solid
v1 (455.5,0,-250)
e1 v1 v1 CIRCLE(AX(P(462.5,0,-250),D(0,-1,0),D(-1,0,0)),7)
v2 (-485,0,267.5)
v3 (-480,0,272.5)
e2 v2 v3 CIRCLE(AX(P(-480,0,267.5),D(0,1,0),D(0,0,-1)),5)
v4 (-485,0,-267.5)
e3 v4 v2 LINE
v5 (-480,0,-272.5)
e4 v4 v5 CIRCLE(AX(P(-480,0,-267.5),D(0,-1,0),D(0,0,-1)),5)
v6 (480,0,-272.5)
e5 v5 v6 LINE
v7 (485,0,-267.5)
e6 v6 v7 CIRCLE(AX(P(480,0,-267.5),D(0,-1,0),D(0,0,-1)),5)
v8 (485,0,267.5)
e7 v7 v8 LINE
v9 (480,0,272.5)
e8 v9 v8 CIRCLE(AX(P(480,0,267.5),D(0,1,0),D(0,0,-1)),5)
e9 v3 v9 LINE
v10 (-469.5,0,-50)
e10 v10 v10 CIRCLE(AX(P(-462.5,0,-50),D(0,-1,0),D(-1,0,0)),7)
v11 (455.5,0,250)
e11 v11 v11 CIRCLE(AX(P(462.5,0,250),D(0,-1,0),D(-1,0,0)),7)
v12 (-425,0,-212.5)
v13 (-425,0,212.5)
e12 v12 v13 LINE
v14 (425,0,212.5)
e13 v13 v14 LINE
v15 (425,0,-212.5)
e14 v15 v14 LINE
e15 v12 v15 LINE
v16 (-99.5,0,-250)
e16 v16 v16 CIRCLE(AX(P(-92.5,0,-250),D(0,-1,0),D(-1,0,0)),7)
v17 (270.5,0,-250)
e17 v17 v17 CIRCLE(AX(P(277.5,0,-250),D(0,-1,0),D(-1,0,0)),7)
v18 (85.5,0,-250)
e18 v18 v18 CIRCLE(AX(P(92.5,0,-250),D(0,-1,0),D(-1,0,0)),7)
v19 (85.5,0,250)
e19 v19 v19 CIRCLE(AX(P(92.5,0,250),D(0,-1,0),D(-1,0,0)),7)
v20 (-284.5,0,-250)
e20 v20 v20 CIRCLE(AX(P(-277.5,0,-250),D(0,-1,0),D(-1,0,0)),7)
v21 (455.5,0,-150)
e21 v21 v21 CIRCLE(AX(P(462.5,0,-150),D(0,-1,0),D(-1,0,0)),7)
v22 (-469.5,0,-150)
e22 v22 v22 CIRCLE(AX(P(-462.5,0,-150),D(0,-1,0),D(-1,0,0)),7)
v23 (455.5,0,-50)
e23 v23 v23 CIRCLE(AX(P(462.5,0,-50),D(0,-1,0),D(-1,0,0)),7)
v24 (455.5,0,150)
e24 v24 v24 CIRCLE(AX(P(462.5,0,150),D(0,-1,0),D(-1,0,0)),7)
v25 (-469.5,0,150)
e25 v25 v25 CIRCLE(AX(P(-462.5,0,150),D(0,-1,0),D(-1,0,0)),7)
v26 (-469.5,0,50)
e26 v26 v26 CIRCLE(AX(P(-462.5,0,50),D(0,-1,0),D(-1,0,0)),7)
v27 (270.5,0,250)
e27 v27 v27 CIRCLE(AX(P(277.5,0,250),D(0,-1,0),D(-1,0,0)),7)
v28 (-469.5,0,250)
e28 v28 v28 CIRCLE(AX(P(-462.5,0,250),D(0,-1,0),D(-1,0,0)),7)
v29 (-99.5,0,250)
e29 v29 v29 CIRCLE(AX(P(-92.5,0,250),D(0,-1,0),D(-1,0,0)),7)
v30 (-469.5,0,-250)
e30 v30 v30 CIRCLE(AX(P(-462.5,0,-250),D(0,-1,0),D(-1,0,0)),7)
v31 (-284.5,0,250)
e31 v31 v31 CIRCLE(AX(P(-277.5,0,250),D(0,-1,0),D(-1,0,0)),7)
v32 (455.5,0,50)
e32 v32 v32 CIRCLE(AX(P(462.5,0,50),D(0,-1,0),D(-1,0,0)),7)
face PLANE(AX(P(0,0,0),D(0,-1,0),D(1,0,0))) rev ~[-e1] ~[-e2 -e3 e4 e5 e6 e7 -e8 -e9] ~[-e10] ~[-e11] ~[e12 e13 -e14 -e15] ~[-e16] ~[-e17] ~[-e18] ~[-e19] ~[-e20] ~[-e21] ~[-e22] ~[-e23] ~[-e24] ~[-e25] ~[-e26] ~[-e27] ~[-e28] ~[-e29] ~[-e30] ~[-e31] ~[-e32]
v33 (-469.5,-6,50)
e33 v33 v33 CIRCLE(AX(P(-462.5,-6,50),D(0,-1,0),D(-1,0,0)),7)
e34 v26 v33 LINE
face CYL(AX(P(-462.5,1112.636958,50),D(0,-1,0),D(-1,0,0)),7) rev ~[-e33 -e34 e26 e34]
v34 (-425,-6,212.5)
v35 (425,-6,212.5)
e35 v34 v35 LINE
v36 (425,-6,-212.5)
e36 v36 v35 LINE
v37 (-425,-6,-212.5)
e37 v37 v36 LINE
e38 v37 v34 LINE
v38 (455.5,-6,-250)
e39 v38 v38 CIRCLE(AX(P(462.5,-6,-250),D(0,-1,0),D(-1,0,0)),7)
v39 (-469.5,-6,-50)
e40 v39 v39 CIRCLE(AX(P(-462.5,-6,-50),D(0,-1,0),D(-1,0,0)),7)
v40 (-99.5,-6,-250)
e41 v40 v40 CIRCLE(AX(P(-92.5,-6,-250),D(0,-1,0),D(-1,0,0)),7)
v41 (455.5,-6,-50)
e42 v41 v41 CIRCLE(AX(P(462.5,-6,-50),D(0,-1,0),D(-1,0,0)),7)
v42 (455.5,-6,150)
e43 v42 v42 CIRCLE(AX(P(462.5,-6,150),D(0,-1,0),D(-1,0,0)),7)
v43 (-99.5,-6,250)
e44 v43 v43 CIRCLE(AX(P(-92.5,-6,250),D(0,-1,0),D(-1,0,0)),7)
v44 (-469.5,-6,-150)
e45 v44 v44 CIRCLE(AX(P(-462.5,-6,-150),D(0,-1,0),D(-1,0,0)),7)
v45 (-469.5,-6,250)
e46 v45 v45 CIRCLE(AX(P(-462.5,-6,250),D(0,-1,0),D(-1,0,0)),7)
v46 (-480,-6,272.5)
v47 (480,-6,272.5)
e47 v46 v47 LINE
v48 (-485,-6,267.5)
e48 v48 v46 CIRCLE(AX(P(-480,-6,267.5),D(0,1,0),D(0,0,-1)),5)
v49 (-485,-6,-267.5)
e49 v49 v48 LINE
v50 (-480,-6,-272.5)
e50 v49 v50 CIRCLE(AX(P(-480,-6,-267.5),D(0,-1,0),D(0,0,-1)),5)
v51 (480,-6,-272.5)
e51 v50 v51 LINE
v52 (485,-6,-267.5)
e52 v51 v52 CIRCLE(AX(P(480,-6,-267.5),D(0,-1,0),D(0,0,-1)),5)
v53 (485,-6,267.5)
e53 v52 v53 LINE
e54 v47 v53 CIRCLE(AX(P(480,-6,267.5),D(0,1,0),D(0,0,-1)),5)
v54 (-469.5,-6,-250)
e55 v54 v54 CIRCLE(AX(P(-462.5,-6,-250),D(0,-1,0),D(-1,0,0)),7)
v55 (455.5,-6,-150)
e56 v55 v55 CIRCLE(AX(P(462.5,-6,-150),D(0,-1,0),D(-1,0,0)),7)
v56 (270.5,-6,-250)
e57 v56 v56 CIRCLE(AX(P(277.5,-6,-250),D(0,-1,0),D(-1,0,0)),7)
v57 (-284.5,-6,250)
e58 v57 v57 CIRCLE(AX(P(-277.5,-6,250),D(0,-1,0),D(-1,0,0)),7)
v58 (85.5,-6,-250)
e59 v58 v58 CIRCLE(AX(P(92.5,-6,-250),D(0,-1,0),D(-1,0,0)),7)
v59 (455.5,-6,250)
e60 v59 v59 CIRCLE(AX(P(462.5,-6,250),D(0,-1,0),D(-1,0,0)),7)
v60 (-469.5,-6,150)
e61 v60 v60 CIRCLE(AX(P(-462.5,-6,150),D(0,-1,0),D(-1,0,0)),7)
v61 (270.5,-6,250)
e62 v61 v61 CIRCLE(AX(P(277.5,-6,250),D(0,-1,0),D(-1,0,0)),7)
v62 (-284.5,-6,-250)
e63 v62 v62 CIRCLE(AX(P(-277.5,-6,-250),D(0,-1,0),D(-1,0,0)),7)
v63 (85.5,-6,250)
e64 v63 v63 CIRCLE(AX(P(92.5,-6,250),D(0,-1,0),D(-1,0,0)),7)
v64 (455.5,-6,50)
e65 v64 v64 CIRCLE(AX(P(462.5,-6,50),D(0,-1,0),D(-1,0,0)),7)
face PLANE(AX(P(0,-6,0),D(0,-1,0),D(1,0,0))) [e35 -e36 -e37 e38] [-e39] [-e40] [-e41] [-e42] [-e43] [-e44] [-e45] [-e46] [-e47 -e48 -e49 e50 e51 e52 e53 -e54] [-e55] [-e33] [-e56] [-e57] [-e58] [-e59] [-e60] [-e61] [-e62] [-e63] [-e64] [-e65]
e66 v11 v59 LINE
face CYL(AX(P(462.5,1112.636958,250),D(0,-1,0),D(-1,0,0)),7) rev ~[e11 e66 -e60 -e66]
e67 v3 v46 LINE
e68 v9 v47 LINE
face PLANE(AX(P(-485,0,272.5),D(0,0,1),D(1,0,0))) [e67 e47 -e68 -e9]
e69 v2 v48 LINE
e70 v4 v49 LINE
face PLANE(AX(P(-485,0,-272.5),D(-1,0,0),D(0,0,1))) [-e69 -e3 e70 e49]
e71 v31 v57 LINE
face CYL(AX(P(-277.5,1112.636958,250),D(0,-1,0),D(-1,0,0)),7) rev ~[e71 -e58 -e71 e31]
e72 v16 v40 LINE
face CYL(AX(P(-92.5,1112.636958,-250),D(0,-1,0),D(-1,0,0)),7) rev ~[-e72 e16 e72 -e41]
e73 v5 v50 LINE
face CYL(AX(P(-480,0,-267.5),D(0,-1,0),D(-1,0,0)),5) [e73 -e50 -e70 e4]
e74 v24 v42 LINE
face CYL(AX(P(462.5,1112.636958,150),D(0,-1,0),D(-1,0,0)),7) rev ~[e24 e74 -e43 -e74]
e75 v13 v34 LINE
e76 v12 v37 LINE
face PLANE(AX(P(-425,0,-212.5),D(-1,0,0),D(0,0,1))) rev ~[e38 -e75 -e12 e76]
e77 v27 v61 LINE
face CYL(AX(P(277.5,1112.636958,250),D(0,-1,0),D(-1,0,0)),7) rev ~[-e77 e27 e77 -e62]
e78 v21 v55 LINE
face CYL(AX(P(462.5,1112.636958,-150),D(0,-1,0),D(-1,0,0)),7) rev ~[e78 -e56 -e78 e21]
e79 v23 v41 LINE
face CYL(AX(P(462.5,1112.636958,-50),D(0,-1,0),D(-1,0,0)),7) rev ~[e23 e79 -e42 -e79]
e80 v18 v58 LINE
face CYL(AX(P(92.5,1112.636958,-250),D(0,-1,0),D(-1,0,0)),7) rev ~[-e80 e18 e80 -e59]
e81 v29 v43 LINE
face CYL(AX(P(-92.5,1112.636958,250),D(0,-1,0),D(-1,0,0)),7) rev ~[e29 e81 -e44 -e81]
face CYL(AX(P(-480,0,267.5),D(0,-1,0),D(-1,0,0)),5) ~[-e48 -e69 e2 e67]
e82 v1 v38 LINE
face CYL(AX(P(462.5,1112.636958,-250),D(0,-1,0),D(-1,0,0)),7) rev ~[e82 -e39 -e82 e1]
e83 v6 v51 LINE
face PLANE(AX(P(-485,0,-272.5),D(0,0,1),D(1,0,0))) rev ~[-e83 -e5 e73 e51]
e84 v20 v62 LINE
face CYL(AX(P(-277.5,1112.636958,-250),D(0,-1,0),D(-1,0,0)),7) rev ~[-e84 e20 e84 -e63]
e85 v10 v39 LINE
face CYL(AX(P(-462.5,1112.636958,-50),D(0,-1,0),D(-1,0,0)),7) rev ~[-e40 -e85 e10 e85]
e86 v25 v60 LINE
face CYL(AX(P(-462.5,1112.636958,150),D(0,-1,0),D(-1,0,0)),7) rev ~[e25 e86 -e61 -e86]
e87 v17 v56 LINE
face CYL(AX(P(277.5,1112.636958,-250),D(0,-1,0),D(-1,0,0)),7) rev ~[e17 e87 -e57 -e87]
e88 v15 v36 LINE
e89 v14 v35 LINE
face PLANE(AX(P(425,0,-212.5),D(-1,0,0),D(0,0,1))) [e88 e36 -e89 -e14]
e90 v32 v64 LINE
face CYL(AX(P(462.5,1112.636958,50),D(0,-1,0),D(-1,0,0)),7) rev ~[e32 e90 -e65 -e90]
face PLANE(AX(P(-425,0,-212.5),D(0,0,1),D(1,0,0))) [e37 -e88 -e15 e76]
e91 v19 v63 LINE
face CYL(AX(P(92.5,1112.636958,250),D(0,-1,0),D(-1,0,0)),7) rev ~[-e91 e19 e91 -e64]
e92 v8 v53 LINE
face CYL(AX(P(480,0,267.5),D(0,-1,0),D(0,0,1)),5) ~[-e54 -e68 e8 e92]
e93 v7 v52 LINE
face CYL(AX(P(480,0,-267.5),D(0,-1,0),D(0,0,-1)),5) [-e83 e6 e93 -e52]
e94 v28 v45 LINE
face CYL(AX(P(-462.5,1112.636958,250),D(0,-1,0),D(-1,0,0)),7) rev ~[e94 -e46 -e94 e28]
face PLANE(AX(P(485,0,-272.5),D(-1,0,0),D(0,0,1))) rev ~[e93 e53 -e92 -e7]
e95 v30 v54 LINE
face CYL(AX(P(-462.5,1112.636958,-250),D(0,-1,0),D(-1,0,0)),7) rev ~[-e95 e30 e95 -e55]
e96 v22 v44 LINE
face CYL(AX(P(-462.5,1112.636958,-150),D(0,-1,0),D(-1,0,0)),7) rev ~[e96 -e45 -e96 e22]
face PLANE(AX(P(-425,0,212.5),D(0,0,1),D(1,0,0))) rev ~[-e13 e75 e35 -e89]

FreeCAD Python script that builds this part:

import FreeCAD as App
import Part
import Sketcher
from FreeCAD import Vector
Q = App.Units.Quantity


def edges_at(feature, points):
    """Names of the edges that pass closest to the given points."""
    edges = feature.Shape.Edges
    near = lambda p: min(range(len(edges)), key=lambda i: edges[i].distToShape(Part.Vertex(*p))[0])
    return sorted({f"Edge{near(p) + 1}" for p in points})

doc = App.newDocument("Part")
params = doc.addObject("Spreadsheet::Sheet", "Params")
for row, (alias, value) in enumerate([
    ("sketch1_width", "970 mm"),
    ("sketch1_width2", "850 mm"),
    ("sketch1_height", "545 mm"),
    ("sketch1_height2", "425 mm"),
    ("pad1_length", "6 mm"),
    ("fillet_radius", "5 mm"),
    ("sketch2_diameter", "14 mm"),
    ("hole_diameter", "14 mm"),
], start=1):
    params.set(f"A{row}", alias)
    params.set(f"B{row}", "=" + value)
    params.setAlias(f"B{row}", alias)

body = doc.addObject("PartDesign::Body", "Body")

sketch1 = body.newObject("Sketcher::SketchObject", "Sketch")
sketch1.AttachmentSupport = (doc.getObject("XZ_Plane"), [""])
sketch1.MapMode = "FlatFace"
sketch1.addGeometry([
    Part.LineSegment(Vector(-485, 272, 0), Vector(-485, -272, 0)),
    Part.LineSegment(Vector(-485, -272, 0), Vector(485, -272, 0)),
    Part.LineSegment(Vector(485, -272, 0), Vector(485, 272, 0)),
    Part.LineSegment(Vector(485, 272, 0), Vector(-485, 272, 0)),
    Part.LineSegment(Vector(425, -212, 0), Vector(-425, -212, 0)),
    Part.LineSegment(Vector(-425, -212, 0), Vector(-425, 212, 0)),
    Part.LineSegment(Vector(-425, 212, 0), Vector(425, 212, 0)),
    Part.LineSegment(Vector(425, 212, 0), Vector(425, -212, 0)),
], False)
sketch1.addConstraint([
    Sketcher.Constraint("Coincident", 0, 2, 1, 1),
    Sketcher.Constraint("Coincident", 1, 2, 2, 1),
    Sketcher.Constraint("Coincident", 2, 2, 3, 1),
    Sketcher.Constraint("Coincident", 3, 2, 0, 1),
    Sketcher.Constraint("Coincident", 4, 2, 5, 1),
    Sketcher.Constraint("Coincident", 5, 2, 6, 1),
    Sketcher.Constraint("Coincident", 6, 2, 7, 1),
    Sketcher.Constraint("Coincident", 7, 2, 4, 1),
    Sketcher.Constraint("Vertical", 0),
    Sketcher.Constraint("Horizontal", 1),
    Sketcher.Constraint("Vertical", 2),
    Sketcher.Constraint("Horizontal", 3),
    Sketcher.Constraint("Horizontal", 4),
    Sketcher.Constraint("Vertical", 5),
    Sketcher.Constraint("Horizontal", 6),
    Sketcher.Constraint("Vertical", 7),
    Sketcher.Constraint("Symmetric", 0, 2, 2, 2, -1, 1),
    Sketcher.Constraint("Symmetric", 4, 2, 6, 2, -1, 1),
    Sketcher.Constraint("DistanceX", 1, 1, 1, 2, Q("970 mm")),
    Sketcher.Constraint("DistanceX", 4, 2, 4, 1, Q("850 mm")),
    Sketcher.Constraint("DistanceY", 0, 2, 0, 1, Q("545 mm")),
    Sketcher.Constraint("DistanceY", 5, 1, 5, 2, Q("425 mm")),
])
sketch1.setExpression("Constraints[18]", "Params.sketch1_width")
sketch1.setExpression("Constraints[19]", "Params.sketch1_width2")
sketch1.setExpression("Constraints[20]", "Params.sketch1_height")
sketch1.setExpression("Constraints[21]", "Params.sketch1_height2")
pad1 = body.newObject("PartDesign::Pad", "Pad")
pad1.Profile = sketch1
pad1.setExpression("Length", "Params.pad1_length")
doc.recompute()

fillet = body.newObject("PartDesign::Fillet", "Fillet")
fillet.Base = (pad1, edges_at(pad1, [
    (-485, -3, 272.5),
    (485, -3, 272.5),
    (485, -3, -272.5),
    (-485, -3, -272.5),
]))
fillet.setExpression("Radius", "Params.fillet_radius")

sketch2 = body.newObject("Sketcher::SketchObject", "Sketch001")
sketch2.AttachmentSupport = (doc.getObject("XZ_Plane"), [""])
sketch2.MapMode = "FlatFace"
sketch2.addGeometry([
    Part.Circle(Vector(462, 250, 0), Vector(0, 0, 1), 7),
    Part.Circle(Vector(278, 250, 0), Vector(0, 0, 1), 7),
    Part.Circle(Vector(92, 250, 0), Vector(0, 0, 1), 7),
    Part.Circle(Vector(-92, 250, 0), Vector(0, 0, 1), 7),
    Part.Circle(Vector(-462, 250, 0), Vector(0, 0, 1), 7),
    Part.Circle(Vector(-462, 150, 0), Vector(0, 0, 1), 7),
    Part.Circle(Vector(-462, 50, 0), Vector(0, 0, 1), 7),
    Part.Circle(Vector(-462, -50, 0), Vector(0, 0, 1), 7),
    Part.Circle(Vector(-462, -150, 0), Vector(0, 0, 1), 7),
    Part.Circle(Vector(-462, -250, 0), Vector(0, 0, 1), 7),
    Part.Circle(Vector(-278, -250, 0), Vector(0, 0, 1), 7),
    Part.Circle(Vector(-92, -250, 0), Vector(0, 0, 1), 7),
    Part.Circle(Vector(92, -250, 0), Vector(0, 0, 1), 7),
    Part.Circle(Vector(278, -250, 0), Vector(0, 0, 1), 7),
    Part.Circle(Vector(462, -250, 0), Vector(0, 0, 1), 7),
    Part.Circle(Vector(462, -150, 0), Vector(0, 0, 1), 7),
    Part.Circle(Vector(462, -50, 0), Vector(0, 0, 1), 7),
    Part.Circle(Vector(462, 50, 0), Vector(0, 0, 1), 7),
    Part.Circle(Vector(462, 150, 0), Vector(0, 0, 1), 7),
    Part.Circle(Vector(-278, 250, 0), Vector(0, 0, 1), 7),
], False)
sketch2.addConstraint([
    Sketcher.Constraint("Equal", 0, 1),
    Sketcher.Constraint("Equal", 1, 2),
    Sketcher.Constraint("Equal", 2, 3),
    Sketcher.Constraint("Equal", 3, 4),
    Sketcher.Constraint("Equal", 4, 5),
    Sketcher.Constraint("Equal", 5, 6),
    Sketcher.Constraint("Equal", 6, 7),
    Sketcher.Constraint("Equal", 7, 8),
    Sketcher.Constraint("Equal", 8, 9),
    Sketcher.Constraint("Equal", 9, 10),
    Sketcher.Constraint("Equal", 10, 11),
    Sketcher.Constraint("Equal", 11, 12),
    Sketcher.Constraint("Equal", 12, 13),
    Sketcher.Constraint("Equal", 13, 14),
    Sketcher.Constraint("Equal", 14, 15),
    Sketcher.Constraint("Equal", 15, 16),
    Sketcher.Constraint("Equal", 16, 17),
    Sketcher.Constraint("Equal", 17, 18),
    Sketcher.Constraint("Equal", 18, 19),
    Sketcher.Constraint("Symmetric", 0, 3, 9, 3, -1, 1),
    Sketcher.Constraint("Symmetric", 1, 3, 10, 3, -1, 1),
    Sketcher.Constraint("Symmetric", 2, 3, 11, 3, -1, 1),
    Sketcher.Constraint("Symmetric", 3, 3, 12, 3, -1, 1),
    Sketcher.Constraint("Symmetric", 4, 3, 14, 3, -1, 1),
    Sketcher.Constraint("Symmetric", 5, 3, 15, 3, -1, 1),
    Sketcher.Constraint("Symmetric", 6, 3, 16, 3, -1, 1),
    Sketcher.Constraint("Symmetric", 7, 3, 17, 3, -1, 1),
    Sketcher.Constraint("Symmetric", 8, 3, 18, 3, -1, 1),
    Sketcher.Constraint("Symmetric", 13, 3, 19, 3, -1, 1),
    Sketcher.Constraint("Symmetric", 2, 3, 3, 3, -2),
    Sketcher.Constraint("Symmetric", 0, 3, 4, 3, -2),
    Sketcher.Constraint("Symmetric", 10, 3, 13, 3, -2),
    Sketcher.Constraint("Symmetric", 8, 3, 15, 3, -2),
    Sketcher.Constraint("Symmetric", 7, 3, 16, 3, -2),
    Sketcher.Constraint("Horizontal", 0, 3, 1, 3),
    Sketcher.Constraint("Horizontal", 1, 3, 2, 3),
    Sketcher.Constraint("Vertical", 4, 3, 5, 3),
    Sketcher.Constraint("Vertical", 5, 3, 6, 3),
    Sketcher.Constraint("Diameter", 0, Q("14 mm")),
    Sketcher.Constraint("DistanceY", -1, 1, 0, 3, Q("250 mm")),
    Sketcher.Constraint("DistanceY", -1, 1, 5, 3, Q("150 mm")),
    Sketcher.Constraint("DistanceY", -1, 1, 6, 3, Q("50 mm")),
    Sketcher.Constraint("DistanceX", 1, 3, 0, 3, Q("185 mm")),
    Sketcher.Constraint("DistanceX", 2, 3, 1, 3, Q("185 mm")),
    Sketcher.Constraint("DistanceX", 3, 3, 2, 3, Q("185 mm")),
])
sketch2.setExpression("Constraints[38]", "Params.sketch2_diameter")
doc.recompute()
hole = body.newObject("PartDesign::Hole", "Hole")
hole.Profile = sketch2
hole.ThreadType = "None"
hole.setExpression("Diameter", "Params.hole_diameter")
hole.DepthType = "ThroughAll"
hole.Reversed = True

doc.recompute()
